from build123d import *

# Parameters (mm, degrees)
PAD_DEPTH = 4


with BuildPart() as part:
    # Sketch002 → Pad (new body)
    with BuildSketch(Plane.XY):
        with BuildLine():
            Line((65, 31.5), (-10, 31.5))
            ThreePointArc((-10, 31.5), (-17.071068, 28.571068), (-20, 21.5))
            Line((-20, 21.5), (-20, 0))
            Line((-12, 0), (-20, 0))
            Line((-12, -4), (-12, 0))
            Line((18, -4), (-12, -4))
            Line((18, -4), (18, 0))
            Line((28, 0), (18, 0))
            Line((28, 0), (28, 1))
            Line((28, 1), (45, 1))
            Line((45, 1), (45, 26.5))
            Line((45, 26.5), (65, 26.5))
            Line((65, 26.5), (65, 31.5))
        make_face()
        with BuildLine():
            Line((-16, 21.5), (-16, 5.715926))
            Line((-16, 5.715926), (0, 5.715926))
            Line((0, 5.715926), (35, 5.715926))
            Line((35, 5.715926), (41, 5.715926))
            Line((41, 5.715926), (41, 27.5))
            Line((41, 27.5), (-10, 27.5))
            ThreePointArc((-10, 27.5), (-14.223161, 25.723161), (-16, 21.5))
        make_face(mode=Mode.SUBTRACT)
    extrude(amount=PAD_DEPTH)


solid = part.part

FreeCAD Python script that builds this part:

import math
import FreeCAD as App
import Part
import Sketcher
from FreeCAD import Vector
Q = App.Units.Quantity

doc = App.newDocument("Part")
body = doc.addObject("PartDesign::Body", "Body")

sketch1 = doc.addObject("Sketcher::SketchObject", "Sketch")
body.addObject(sketch1)
sketch1.AttachmentSupport = (doc.XY_Plane, [""])
sketch1.MapMode = "FlatFace"
sketch1.addGeometry([
    Part.LineSegment(Vector(65, 31.5, 0), Vector(-10, 31.5, 0)),
    Part.ArcOfCircle(Part.Circle(Vector(-10, 21.5, 0), Vector(0, 0, 1), 10), math.radians(90), math.radians(180)),
    Part.LineSegment(Vector(-20, 21.5, 0), Vector(-20, 0, 0)),
    Part.LineSegment(Vector(-20, 0, 0), Vector(-12, 0, 0)),
    Part.LineSegment(Vector(-12, 0, 0), Vector(-12, -4, 0)),
    Part.LineSegment(Vector(-12, -4, 0), Vector(18, -4, 0)),
    Part.LineSegment(Vector(18, -4, 0), Vector(18, 0, 0)),
    Part.LineSegment(Vector(18, 0, 0), Vector(28, 0, 0)),
    Part.LineSegment(Vector(28, 0, 0), Vector(28, 1, 0)),
    Part.LineSegment(Vector(28, 1, 0), Vector(45, 1, 0)),
    Part.LineSegment(Vector(45, 1, 0), Vector(45, 26.5, 0)),
    Part.LineSegment(Vector(45, 26.5, 0), Vector(65, 26.5, 0)),
    Part.LineSegment(Vector(65, 26.5, 0), Vector(65, 31.5, 0)),
    Part.LineSegment(Vector(-16, 5.7, 0), Vector(-16, 21.5, 0)),
    Part.ArcOfCircle(Part.Circle(Vector(-9.9, 21.4, 0), Vector(0, 0, 1), 6.1), math.radians(91), math.radians(179)),
    Part.LineSegment(Vector(-10, 27.5, 0), Vector(41, 27.5, 0)),
    Part.LineSegment(Vector(41, 27.5, 0), Vector(41, 5.7, 0)),
    Part.LineSegment(Vector(41, 5.7, 0), Vector(-16, 5.7, 0)),
], False)
sketch1.addConstraint([
    Sketcher.Constraint("Tangent", 0, 2, 1, 1),
    Sketcher.Constraint("Tangent", 1, 2, 2, 1),
    Sketcher.Constraint("Coincident", 2, 2, 3, 1),
    Sketcher.Constraint("Coincident", 3, 2, 4, 1),
    Sketcher.Constraint("Coincident", 4, 2, 5, 1),
    Sketcher.Constraint("Coincident", 5, 2, 6, 1),
    Sketcher.Constraint("Coincident", 6, 2, 7, 1),
    Sketcher.Constraint("Coincident", 7, 2, 8, 1),
    Sketcher.Constraint("Coincident", 8, 2, 9, 1),
    Sketcher.Constraint("Coincident", 9, 2, 10, 1),
    Sketcher.Constraint("Coincident", 10, 2, 11, 1),
    Sketcher.Constraint("Coincident", 11, 2, 12, 1),
    Sketcher.Constraint("Coincident", 12, 2, 0, 1),
    Sketcher.Constraint("Coincident", 13, 2, 14, 2),
    Sketcher.Constraint("Coincident", 14, 1, 15, 1),
    Sketcher.Constraint("Coincident", 15, 2, 16, 1),
    Sketcher.Constraint("Coincident", 16, 2, 17, 1),
    Sketcher.Constraint("Coincident", 17, 2, 13, 1),
    Sketcher.Constraint("Horizontal", 0),
    Sketcher.Constraint("Vertical", 2),
    Sketcher.Constraint("Horizontal", 3),
    Sketcher.Constraint("Vertical", 4),
    Sketcher.Constraint("Horizontal", 5),
    Sketcher.Constraint("Vertical", 6),
    Sketcher.Constraint("Horizontal", 7),
    Sketcher.Constraint("Vertical", 8),
    Sketcher.Constraint("Horizontal", 9),
    Sketcher.Constraint("Vertical", 10),
    Sketcher.Constraint("Horizontal", 11),
    Sketcher.Constraint("Vertical", 12),
    Sketcher.Constraint("Vertical", 13),
    Sketcher.Constraint("Horizontal", 15),
    Sketcher.Constraint("Vertical", 16),
    Sketcher.Constraint("Horizontal", 17),
    Sketcher.Constraint("PointOnObject", 2, 2, -1),
    Sketcher.Constraint("PointOnObject", 6, 2, -1),
    Sketcher.Constraint("Horizontal", 1, 2, 13, 2),
    Sketcher.Constraint("Vertical", 0, 2, 14, 1),
    Sketcher.Constraint("Radius", 1, Q("9.999999 mm")),
    Sketcher.Constraint("DistanceX", 0, 2, 0, 1, Q("75 mm")),
    Sketcher.Constraint("DistanceX", 3, 1, 3, 2, Q("8 mm")),
    Sketcher.Constraint("DistanceX", 5, 1, 5, 2, Q("30 mm")),
    Sketcher.Constraint("DistanceX", 7, 1, 7, 2, Q("10 mm")),
    Sketcher.Constraint("DistanceX", 9, 1, 9, 2, Q("17 mm")),
    Sketcher.Constraint("DistanceX", 15, 1, 15, 2, Q("51 mm")),
    Sketcher.Constraint("DistanceX", 17, 2, 17, 1, Q("57 mm")),
    Sketcher.Constraint("DistanceY", 4, 2, 4, 1, Q("4 mm")),
    Sketcher.Constraint("DistanceY", 8, 1, 8, 2, Q("1 mm")),
    Sketcher.Constraint("DistanceY", 12, 1, 12, 2, Q("5 mm")),
    Sketcher.Constraint("DistanceY", 2, 2, 2, 1, Q("21.5 mm")),
    Sketcher.Constraint("DistanceX", 1, 3, -1, 1, Q("10.000001 mm")),
    Sketcher.Constraint("DistanceY", 14, 1, 0, 2, Q("4 mm")),
    Sketcher.Constraint("Radius", 14, Q("6.067786 mm")),
    Sketcher.Constraint("DistanceY", 13, 1, 13, 2, Q("15.784074 mm")),
])
pad1 = doc.addObject("PartDesign::Pad", "Pad")
body.addObject(pad1)
pad1.Profile = sketch1
pad1.Length = 4

doc.recompute()
